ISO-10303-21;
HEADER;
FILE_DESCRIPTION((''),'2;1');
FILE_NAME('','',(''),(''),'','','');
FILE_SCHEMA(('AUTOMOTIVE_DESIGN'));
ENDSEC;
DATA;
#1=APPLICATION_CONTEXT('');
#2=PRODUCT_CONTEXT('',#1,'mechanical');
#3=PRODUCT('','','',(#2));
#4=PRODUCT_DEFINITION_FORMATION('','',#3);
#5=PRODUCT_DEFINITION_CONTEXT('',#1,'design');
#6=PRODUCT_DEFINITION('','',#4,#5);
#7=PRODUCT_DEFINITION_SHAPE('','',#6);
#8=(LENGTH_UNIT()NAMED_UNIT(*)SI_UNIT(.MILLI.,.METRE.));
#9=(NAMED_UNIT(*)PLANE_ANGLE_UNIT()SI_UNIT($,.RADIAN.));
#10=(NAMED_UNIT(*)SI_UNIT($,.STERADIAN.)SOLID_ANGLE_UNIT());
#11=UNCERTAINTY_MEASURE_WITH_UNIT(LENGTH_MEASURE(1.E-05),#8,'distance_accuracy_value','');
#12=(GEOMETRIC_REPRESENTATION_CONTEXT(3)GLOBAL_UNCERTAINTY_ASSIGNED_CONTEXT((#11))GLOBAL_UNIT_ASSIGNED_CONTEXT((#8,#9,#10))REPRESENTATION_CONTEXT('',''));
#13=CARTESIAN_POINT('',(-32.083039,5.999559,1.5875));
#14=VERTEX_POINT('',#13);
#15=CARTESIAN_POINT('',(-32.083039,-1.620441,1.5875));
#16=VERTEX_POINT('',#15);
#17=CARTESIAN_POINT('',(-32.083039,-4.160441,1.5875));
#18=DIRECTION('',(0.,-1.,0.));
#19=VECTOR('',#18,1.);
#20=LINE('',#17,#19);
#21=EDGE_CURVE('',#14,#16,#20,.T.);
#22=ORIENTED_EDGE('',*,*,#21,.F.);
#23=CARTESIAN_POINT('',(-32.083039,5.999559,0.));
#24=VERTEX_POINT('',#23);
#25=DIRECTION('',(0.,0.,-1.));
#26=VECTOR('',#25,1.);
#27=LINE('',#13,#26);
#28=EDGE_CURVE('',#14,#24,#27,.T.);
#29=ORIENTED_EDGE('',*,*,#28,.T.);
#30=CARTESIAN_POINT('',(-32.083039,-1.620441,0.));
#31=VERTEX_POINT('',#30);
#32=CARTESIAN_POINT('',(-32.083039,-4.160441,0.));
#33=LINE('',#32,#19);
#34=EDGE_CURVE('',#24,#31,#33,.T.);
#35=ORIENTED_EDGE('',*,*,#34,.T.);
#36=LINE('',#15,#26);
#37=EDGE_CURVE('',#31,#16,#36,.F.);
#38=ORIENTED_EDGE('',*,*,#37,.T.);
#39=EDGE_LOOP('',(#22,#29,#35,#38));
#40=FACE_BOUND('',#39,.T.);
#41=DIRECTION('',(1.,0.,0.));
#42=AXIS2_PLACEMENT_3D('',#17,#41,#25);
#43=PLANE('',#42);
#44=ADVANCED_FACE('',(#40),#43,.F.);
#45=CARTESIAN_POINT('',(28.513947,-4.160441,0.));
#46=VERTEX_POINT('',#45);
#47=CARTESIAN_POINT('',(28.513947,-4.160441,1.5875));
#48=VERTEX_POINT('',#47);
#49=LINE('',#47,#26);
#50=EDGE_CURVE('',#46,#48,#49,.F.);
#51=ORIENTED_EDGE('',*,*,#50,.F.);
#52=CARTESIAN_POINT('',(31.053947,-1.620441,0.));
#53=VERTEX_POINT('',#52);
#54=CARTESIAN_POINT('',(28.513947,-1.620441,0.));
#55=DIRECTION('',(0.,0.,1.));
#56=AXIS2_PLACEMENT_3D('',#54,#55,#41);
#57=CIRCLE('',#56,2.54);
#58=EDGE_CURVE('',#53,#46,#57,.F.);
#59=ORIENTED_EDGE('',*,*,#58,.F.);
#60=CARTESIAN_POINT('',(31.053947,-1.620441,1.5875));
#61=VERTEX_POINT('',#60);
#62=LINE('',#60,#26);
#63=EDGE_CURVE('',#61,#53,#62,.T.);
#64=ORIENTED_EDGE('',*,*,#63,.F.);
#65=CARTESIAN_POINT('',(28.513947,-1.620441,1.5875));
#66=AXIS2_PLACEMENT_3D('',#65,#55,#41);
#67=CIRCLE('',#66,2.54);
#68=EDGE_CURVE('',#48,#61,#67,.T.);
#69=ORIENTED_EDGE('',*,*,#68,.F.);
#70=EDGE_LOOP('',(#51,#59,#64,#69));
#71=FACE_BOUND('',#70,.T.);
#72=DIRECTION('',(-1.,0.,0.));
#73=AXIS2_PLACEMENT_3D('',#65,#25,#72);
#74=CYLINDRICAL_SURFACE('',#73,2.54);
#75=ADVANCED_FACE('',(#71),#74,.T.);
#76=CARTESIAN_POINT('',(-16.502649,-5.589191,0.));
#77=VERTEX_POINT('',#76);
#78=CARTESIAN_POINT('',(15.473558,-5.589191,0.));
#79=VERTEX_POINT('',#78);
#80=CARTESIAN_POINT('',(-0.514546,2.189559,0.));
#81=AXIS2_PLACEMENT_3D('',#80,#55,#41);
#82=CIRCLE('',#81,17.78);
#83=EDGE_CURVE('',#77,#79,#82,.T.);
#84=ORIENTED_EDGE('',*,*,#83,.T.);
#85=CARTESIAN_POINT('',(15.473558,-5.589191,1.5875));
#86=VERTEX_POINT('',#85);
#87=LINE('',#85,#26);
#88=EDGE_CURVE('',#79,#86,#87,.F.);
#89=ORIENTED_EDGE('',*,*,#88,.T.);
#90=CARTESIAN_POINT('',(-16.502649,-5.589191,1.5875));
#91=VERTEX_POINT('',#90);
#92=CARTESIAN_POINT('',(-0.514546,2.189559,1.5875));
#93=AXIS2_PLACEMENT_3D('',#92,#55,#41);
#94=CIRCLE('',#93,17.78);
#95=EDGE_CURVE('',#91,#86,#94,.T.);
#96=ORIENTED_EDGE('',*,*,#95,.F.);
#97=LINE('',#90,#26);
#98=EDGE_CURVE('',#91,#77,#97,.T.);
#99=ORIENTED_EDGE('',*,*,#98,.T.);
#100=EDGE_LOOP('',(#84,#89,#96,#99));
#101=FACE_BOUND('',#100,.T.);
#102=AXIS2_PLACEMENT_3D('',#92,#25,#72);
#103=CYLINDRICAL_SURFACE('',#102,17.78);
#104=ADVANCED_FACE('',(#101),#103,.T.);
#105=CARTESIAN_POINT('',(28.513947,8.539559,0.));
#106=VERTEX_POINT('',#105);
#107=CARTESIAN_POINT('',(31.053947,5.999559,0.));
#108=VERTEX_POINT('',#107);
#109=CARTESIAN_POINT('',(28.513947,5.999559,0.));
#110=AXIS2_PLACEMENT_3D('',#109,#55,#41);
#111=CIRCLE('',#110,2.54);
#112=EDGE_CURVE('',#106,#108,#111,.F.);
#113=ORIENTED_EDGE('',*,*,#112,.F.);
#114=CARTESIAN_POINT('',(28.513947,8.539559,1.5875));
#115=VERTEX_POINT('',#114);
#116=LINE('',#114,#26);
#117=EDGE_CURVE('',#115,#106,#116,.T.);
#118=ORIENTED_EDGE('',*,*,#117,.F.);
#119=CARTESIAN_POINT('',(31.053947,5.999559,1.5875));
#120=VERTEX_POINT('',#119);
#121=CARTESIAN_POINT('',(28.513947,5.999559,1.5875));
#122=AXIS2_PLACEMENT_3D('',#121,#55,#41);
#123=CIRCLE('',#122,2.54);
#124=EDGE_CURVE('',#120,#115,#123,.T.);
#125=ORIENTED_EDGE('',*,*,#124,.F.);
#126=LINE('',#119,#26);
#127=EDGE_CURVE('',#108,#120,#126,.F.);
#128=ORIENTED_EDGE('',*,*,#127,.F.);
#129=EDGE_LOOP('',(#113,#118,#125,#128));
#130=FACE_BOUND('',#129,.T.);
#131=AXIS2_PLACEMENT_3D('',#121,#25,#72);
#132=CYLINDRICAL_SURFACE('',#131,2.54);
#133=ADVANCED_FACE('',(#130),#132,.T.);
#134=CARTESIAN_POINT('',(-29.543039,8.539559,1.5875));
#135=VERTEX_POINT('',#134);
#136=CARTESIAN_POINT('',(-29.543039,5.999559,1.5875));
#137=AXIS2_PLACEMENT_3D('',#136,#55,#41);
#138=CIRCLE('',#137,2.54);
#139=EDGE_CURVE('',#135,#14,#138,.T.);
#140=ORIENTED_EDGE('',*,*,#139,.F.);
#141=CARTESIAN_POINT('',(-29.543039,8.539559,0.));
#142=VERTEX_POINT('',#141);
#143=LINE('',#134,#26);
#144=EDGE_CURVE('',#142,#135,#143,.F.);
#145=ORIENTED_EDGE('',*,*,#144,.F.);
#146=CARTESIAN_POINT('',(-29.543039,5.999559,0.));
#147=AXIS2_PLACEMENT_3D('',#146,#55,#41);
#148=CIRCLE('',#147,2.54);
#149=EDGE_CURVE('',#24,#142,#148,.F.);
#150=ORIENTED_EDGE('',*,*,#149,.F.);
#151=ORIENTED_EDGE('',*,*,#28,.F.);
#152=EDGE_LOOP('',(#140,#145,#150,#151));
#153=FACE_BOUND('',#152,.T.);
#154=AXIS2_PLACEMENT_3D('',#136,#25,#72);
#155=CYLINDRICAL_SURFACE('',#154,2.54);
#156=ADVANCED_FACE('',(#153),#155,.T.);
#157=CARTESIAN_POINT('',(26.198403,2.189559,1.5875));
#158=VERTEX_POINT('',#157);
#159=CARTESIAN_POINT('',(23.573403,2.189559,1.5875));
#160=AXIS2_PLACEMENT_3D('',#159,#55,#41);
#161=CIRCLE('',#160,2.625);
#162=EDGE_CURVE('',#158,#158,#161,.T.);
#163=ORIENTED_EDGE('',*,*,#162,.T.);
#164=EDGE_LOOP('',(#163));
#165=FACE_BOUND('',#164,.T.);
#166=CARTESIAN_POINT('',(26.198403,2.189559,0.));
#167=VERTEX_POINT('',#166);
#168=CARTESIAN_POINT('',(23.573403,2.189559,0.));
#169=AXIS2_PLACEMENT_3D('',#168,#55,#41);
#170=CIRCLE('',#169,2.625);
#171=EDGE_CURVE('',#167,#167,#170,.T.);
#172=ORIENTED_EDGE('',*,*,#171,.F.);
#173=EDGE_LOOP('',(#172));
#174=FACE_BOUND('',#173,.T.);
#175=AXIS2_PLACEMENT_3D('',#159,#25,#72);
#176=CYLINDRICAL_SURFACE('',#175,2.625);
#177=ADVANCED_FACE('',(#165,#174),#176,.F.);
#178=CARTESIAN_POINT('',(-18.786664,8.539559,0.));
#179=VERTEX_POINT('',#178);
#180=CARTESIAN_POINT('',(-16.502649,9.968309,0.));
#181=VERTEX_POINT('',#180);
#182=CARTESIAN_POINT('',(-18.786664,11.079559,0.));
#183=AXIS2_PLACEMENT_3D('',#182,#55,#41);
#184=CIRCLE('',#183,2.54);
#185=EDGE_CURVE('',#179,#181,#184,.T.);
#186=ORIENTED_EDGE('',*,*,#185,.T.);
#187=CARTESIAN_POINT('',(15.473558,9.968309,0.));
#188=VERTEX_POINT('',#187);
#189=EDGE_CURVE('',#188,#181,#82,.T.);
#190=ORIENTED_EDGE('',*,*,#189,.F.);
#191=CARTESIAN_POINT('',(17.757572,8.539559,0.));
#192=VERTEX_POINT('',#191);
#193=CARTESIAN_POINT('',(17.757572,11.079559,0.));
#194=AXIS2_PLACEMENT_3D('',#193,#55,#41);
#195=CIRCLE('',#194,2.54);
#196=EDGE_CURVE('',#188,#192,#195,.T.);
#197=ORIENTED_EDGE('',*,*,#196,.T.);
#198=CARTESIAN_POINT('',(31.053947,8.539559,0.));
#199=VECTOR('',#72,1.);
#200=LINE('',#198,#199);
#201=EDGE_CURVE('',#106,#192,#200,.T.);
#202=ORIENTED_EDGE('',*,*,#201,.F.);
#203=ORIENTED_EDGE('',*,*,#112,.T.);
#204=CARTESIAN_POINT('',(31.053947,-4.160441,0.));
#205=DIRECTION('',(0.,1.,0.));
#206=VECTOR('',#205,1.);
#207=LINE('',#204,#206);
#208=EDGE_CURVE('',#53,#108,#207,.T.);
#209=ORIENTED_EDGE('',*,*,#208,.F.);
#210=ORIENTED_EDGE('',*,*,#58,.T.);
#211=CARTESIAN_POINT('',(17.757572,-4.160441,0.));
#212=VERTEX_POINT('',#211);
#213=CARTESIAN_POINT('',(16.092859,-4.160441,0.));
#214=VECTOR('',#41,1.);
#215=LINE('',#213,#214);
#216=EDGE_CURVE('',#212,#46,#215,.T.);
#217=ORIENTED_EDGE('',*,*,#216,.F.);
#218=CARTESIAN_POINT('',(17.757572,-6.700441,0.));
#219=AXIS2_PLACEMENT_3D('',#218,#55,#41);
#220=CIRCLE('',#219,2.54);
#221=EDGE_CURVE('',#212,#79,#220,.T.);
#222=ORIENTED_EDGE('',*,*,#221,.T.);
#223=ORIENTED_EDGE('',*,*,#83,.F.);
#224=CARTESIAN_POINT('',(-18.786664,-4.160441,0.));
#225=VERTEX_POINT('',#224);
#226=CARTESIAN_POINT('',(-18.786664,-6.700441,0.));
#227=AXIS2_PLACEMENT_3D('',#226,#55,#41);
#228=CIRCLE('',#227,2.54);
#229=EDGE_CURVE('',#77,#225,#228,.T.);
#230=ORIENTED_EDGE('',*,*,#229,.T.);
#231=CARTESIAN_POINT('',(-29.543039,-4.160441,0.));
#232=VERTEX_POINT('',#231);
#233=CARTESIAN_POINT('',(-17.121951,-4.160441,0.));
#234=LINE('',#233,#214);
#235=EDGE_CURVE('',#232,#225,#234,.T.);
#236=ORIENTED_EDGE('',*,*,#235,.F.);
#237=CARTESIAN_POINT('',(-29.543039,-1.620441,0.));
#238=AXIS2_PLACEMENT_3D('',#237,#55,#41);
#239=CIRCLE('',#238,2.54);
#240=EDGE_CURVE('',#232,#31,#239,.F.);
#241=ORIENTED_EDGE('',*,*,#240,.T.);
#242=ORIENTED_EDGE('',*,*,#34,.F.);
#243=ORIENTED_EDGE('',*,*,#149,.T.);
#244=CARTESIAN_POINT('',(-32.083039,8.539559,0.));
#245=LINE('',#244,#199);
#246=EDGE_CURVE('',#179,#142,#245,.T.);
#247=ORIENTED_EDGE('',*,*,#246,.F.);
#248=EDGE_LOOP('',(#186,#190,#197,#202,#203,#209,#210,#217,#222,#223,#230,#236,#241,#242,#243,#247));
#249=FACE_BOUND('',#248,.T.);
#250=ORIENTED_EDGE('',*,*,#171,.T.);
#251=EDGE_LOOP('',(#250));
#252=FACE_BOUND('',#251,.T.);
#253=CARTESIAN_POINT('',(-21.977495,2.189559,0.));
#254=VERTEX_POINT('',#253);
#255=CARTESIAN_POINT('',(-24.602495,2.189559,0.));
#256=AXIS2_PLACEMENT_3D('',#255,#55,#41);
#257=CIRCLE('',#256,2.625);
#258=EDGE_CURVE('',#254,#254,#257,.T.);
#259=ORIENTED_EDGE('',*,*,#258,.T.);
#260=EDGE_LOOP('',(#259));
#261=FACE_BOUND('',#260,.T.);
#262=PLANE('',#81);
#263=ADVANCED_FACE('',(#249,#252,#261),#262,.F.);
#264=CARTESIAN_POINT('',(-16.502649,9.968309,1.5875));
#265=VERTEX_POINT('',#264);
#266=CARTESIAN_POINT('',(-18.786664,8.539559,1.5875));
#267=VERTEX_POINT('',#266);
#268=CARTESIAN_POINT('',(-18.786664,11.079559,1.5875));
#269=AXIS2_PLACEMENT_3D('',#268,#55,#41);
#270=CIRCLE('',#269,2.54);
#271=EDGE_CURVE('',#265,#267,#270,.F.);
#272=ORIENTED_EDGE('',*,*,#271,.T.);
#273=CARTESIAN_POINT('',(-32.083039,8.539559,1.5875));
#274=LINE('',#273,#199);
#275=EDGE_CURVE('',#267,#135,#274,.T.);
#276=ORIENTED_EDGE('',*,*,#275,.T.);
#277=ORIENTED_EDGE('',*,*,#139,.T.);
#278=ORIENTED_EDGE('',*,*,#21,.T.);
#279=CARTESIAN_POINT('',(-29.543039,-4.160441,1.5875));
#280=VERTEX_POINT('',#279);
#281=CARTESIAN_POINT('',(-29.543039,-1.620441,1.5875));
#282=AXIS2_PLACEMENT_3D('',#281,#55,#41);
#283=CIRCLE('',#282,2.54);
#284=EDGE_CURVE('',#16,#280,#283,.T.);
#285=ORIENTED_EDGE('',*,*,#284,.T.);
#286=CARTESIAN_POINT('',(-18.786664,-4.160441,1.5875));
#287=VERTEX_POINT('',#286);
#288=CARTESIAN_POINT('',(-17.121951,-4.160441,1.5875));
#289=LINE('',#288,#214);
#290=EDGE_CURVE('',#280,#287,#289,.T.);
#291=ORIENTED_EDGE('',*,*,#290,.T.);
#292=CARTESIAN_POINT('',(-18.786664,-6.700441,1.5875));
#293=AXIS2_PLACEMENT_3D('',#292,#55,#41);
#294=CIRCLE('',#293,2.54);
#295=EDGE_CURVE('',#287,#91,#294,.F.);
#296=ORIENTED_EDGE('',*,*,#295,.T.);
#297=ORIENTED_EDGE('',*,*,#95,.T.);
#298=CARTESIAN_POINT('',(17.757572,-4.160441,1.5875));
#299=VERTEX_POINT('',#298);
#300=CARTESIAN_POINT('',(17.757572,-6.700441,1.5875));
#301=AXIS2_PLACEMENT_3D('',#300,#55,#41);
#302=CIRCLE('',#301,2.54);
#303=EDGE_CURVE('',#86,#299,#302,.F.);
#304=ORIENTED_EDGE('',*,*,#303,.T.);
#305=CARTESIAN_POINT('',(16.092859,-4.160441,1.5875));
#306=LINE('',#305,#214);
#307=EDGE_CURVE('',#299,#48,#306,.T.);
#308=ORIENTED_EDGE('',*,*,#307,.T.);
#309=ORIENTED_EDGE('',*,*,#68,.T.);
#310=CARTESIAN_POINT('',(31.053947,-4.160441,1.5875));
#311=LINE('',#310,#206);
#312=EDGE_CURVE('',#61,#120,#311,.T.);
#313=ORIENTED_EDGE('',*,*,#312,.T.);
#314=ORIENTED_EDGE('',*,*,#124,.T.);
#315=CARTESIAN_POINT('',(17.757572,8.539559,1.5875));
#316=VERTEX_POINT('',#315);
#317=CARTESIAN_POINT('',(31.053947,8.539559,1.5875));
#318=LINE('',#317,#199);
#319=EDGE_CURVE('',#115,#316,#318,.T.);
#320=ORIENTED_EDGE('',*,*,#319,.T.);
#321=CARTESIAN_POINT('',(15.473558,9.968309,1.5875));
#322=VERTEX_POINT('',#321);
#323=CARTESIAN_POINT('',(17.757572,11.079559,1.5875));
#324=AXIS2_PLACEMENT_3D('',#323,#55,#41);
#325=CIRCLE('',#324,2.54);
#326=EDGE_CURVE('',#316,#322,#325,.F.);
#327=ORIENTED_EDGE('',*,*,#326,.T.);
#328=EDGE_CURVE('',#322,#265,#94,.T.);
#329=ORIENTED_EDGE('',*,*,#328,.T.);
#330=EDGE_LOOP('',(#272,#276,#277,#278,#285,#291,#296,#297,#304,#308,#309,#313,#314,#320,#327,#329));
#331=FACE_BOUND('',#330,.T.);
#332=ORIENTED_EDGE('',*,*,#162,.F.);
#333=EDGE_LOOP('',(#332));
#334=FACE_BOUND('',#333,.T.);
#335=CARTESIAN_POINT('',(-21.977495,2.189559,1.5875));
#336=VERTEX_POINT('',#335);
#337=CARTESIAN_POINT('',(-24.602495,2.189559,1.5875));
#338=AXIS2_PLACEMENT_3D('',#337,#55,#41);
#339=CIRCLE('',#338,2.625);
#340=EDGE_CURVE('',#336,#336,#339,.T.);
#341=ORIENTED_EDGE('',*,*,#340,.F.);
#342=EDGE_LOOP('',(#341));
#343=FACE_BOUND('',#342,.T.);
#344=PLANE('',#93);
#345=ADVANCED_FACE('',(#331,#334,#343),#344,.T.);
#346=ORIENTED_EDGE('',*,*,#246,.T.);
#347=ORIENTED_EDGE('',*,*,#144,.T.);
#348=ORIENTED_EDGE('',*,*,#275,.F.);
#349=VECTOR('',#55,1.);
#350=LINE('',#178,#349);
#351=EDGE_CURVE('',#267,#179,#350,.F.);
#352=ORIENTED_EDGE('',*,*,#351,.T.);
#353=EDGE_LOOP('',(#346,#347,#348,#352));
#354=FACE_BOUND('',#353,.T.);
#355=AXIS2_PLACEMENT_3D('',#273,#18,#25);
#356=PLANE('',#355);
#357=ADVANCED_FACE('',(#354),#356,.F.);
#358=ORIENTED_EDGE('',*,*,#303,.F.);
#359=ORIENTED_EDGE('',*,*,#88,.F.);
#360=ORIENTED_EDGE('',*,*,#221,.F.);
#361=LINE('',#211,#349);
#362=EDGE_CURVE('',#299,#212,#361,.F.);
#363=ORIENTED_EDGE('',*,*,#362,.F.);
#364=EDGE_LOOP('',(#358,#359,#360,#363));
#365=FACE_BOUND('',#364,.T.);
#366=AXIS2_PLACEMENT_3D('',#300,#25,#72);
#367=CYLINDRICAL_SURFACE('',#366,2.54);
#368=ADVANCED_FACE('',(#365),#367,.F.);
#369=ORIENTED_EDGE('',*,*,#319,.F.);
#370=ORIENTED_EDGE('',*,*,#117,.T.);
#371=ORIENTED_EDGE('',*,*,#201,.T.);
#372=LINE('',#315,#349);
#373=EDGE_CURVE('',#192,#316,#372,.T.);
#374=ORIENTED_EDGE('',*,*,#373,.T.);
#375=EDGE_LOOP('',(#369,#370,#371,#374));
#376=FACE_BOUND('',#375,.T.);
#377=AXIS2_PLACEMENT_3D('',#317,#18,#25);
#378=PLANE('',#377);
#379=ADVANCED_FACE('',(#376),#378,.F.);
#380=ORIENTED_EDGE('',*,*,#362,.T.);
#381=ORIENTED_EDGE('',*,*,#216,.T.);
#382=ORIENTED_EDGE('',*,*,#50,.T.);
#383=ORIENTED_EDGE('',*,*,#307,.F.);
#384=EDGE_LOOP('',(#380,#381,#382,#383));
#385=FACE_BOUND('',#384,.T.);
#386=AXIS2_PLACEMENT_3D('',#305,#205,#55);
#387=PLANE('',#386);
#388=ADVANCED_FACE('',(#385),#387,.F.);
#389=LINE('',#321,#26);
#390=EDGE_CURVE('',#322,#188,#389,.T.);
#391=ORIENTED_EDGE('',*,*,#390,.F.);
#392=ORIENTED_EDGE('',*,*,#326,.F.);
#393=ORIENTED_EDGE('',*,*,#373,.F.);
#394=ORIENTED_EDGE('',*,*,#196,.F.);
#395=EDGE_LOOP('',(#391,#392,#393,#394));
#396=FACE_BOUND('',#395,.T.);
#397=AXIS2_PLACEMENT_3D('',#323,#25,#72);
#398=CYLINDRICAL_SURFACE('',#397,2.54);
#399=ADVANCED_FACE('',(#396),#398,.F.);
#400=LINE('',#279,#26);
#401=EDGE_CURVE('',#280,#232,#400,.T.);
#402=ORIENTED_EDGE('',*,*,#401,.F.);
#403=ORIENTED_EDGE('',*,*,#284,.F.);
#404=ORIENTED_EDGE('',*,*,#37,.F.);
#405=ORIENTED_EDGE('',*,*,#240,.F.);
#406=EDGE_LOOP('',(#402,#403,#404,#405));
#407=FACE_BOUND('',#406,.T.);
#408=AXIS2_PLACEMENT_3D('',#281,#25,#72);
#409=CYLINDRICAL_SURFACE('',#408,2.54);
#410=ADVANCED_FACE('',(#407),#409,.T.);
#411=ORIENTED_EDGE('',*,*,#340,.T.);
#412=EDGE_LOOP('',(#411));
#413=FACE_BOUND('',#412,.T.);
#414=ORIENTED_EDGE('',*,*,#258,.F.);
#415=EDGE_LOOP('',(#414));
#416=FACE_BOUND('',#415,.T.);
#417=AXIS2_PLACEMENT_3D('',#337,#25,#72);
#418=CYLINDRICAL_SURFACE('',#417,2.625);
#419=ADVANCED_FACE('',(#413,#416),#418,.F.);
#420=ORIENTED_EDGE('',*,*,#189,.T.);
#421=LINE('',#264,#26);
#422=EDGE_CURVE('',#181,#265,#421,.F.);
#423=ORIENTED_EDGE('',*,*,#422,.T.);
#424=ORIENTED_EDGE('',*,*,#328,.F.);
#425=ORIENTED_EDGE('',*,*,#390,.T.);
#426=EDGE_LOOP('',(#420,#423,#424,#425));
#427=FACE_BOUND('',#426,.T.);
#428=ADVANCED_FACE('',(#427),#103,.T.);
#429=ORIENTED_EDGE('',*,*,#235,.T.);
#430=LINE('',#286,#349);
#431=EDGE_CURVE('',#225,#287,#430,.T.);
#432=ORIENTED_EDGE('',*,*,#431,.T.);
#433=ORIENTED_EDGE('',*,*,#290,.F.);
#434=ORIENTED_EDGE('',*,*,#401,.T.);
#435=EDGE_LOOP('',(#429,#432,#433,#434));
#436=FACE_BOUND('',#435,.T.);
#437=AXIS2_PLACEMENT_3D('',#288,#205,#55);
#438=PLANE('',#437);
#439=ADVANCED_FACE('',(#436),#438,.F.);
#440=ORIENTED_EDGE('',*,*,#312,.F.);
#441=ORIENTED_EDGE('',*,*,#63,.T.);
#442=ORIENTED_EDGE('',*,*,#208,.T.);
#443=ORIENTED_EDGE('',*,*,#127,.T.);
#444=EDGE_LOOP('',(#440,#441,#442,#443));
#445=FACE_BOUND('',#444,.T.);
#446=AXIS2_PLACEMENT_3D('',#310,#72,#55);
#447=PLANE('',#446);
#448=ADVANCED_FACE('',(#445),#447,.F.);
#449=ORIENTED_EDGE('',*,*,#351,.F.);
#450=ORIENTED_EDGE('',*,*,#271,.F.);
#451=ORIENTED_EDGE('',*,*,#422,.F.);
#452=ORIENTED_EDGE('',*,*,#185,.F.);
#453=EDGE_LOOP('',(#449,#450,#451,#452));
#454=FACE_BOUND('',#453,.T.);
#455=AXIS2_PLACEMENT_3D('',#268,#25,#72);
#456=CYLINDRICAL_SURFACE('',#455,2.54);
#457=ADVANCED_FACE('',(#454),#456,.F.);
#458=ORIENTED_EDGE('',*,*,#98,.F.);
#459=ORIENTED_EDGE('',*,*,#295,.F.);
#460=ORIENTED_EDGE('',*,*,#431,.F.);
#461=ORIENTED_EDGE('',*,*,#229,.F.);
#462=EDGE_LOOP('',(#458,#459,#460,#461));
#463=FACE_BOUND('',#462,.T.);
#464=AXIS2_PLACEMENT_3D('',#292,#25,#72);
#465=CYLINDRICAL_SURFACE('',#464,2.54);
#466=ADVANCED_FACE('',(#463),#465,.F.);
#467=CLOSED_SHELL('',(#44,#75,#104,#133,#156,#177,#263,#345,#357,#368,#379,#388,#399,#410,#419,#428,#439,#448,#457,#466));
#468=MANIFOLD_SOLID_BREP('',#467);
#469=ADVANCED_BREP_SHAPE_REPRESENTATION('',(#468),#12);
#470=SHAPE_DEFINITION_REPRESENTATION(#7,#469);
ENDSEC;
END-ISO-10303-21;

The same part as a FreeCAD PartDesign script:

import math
import FreeCAD as App
import Part
import Sketcher
from FreeCAD import Vector
Q = App.Units.Quantity


def edges_at(feature, points):
    """Names of the edges that pass closest to the given points."""
    edges = feature.Shape.Edges
    near = lambda p: min(range(len(edges)), key=lambda i: edges[i].distToShape(Part.Vertex(*p))[0])
    return sorted({f"Edge{near(p) + 1}" for p in points})

doc = App.newDocument("Part")
body = doc.addObject("PartDesign::Body", "Body")

# Sketch on XY plane
sketch1 = body.newObject("Sketcher::SketchObject", "Sketch")
sketch1.AttachmentSupport = (doc.getObject("XY_Plane"), [""])
sketch1.MapMode = "FlatFace"
sketch1.addGeometry([
    Part.LineSegment(Vector(16.1, -4.2, 0), Vector(31.1, -4.2, 0)),  # 0
    Part.LineSegment(Vector(31.1, -4.2, 0), Vector(31.1, 8.5, 0)),  # 1
    Part.LineSegment(Vector(31.1, 8.5, 0), Vector(16.1, 8.5, 0)),  # 2
    Part.ArcOfCircle(Part.Circle(Vector(-0.5, 2.2, 0), Vector(0, 0, 1), 17.8), math.radians(21), math.radians(159)),  # 3
    Part.LineSegment(Vector(-17.1, 8.5, 0), Vector(-32.1, 8.5, 0)),  # 4
    Part.LineSegment(Vector(-32.1, 8.5, 0), Vector(-32.1, -4.2, 0)),  # 5
    Part.LineSegment(Vector(-32.1, -4.2, 0), Vector(-17.1, -4.2, 0)),  # 6
    Part.ArcOfCircle(Part.Circle(Vector(-0.5, 2.2, 0), Vector(0, 0, 1), 17.8), math.radians(-159), math.radians(-21)),  # 7
    Part.Circle(Vector(23.6, 2.2, 0), Vector(0, 0, 1), 2.6),  # 8
    Part.Circle(Vector(-24.6, 2.2, 0), Vector(0, 0, 1), 2.6),  # 9
], False)
sketch1.addConstraint([
    Sketcher.Constraint("Coincident", 0, 2, 1, 1),
    Sketcher.Constraint("Coincident", 1, 2, 2, 1),
    Sketcher.Constraint("Coincident", 2, 2, 3, 1),
    Sketcher.Constraint("Coincident", 3, 2, 4, 1),
    Sketcher.Constraint("Coincident", 4, 2, 5, 1),
    Sketcher.Constraint("Coincident", 5, 2, 6, 1),
    Sketcher.Constraint("Coincident", 6, 2, 7, 1),
    Sketcher.Constraint("Coincident", 7, 2, 0, 1),
    Sketcher.Constraint("Horizontal", 0),
    Sketcher.Constraint("Vertical", 1),
    Sketcher.Constraint("Horizontal", 2),
    Sketcher.Constraint("Horizontal", 4),
    Sketcher.Constraint("Vertical", 5),
    Sketcher.Constraint("Horizontal", 6),
    Sketcher.Constraint("Coincident", 7, 3, 3, 3),
    Sketcher.Constraint("Equal", 3, 7),
    Sketcher.Constraint("Equal", 8, 9),
    Sketcher.Constraint("Horizontal", 7, 3, 8, 3),
    Sketcher.Constraint("Horizontal", 8, 3, 9, 3),
    Sketcher.Constraint("Horizontal", 2, 2, 3, 2),
    Sketcher.Constraint("Horizontal", 0, 2, 5, 2),
    Sketcher.Constraint("Vertical", 3, 2, 6, 2),
    Sketcher.Constraint("Equal", 2, 4),
    Sketcher.Constraint("Radius", 3, Q("0.7 in")),
    Sketcher.Constraint("DistanceY", 1, 1, 1, 2, Q("0.5 in")),
    Sketcher.Constraint("Diameter", 8, Q("5.25 mm")),
    Sketcher.Constraint("DistanceX", 0, 1, 0, 2, Q("14.961088 mm")),
    Sketcher.Constraint("DistanceX", 9, 3, 8, 3, Q("48.175898 mm")),
    Sketcher.Constraint("DistanceY", -1, 1, 3, 3, Q("2.189559 mm")),
    Sketcher.Constraint("DistanceX", -1, 1, 2, 2, Q("16.092859 mm")),
    Sketcher.Constraint("DistanceX", 3, 3, 8, 3, Q("24.087949 mm")),
])
pad1 = body.newObject("PartDesign::Pad", "Pad")
pad1.Profile = sketch1
pad1.Length = Q("0.0625 in")
doc.recompute()

fillet = body.newObject("PartDesign::Fillet", "Fillet")
fillet.Base = (pad1, edges_at(pad1, [
    (-17.122, -4.16, 0.794),
    (-32.083, -4.16, 0.794),
    (-32.083, 8.54, 0.794),
    (-17.122, 8.54, 0.794),
    (16.093, 8.54, 0.794),
    (31.054, 8.54, 0.794),
    (31.054, -4.16, 0.794),
    (16.093, -4.16, 0.794),
]))
fillet.Radius = Q("0.1 in")

doc.recompute()
